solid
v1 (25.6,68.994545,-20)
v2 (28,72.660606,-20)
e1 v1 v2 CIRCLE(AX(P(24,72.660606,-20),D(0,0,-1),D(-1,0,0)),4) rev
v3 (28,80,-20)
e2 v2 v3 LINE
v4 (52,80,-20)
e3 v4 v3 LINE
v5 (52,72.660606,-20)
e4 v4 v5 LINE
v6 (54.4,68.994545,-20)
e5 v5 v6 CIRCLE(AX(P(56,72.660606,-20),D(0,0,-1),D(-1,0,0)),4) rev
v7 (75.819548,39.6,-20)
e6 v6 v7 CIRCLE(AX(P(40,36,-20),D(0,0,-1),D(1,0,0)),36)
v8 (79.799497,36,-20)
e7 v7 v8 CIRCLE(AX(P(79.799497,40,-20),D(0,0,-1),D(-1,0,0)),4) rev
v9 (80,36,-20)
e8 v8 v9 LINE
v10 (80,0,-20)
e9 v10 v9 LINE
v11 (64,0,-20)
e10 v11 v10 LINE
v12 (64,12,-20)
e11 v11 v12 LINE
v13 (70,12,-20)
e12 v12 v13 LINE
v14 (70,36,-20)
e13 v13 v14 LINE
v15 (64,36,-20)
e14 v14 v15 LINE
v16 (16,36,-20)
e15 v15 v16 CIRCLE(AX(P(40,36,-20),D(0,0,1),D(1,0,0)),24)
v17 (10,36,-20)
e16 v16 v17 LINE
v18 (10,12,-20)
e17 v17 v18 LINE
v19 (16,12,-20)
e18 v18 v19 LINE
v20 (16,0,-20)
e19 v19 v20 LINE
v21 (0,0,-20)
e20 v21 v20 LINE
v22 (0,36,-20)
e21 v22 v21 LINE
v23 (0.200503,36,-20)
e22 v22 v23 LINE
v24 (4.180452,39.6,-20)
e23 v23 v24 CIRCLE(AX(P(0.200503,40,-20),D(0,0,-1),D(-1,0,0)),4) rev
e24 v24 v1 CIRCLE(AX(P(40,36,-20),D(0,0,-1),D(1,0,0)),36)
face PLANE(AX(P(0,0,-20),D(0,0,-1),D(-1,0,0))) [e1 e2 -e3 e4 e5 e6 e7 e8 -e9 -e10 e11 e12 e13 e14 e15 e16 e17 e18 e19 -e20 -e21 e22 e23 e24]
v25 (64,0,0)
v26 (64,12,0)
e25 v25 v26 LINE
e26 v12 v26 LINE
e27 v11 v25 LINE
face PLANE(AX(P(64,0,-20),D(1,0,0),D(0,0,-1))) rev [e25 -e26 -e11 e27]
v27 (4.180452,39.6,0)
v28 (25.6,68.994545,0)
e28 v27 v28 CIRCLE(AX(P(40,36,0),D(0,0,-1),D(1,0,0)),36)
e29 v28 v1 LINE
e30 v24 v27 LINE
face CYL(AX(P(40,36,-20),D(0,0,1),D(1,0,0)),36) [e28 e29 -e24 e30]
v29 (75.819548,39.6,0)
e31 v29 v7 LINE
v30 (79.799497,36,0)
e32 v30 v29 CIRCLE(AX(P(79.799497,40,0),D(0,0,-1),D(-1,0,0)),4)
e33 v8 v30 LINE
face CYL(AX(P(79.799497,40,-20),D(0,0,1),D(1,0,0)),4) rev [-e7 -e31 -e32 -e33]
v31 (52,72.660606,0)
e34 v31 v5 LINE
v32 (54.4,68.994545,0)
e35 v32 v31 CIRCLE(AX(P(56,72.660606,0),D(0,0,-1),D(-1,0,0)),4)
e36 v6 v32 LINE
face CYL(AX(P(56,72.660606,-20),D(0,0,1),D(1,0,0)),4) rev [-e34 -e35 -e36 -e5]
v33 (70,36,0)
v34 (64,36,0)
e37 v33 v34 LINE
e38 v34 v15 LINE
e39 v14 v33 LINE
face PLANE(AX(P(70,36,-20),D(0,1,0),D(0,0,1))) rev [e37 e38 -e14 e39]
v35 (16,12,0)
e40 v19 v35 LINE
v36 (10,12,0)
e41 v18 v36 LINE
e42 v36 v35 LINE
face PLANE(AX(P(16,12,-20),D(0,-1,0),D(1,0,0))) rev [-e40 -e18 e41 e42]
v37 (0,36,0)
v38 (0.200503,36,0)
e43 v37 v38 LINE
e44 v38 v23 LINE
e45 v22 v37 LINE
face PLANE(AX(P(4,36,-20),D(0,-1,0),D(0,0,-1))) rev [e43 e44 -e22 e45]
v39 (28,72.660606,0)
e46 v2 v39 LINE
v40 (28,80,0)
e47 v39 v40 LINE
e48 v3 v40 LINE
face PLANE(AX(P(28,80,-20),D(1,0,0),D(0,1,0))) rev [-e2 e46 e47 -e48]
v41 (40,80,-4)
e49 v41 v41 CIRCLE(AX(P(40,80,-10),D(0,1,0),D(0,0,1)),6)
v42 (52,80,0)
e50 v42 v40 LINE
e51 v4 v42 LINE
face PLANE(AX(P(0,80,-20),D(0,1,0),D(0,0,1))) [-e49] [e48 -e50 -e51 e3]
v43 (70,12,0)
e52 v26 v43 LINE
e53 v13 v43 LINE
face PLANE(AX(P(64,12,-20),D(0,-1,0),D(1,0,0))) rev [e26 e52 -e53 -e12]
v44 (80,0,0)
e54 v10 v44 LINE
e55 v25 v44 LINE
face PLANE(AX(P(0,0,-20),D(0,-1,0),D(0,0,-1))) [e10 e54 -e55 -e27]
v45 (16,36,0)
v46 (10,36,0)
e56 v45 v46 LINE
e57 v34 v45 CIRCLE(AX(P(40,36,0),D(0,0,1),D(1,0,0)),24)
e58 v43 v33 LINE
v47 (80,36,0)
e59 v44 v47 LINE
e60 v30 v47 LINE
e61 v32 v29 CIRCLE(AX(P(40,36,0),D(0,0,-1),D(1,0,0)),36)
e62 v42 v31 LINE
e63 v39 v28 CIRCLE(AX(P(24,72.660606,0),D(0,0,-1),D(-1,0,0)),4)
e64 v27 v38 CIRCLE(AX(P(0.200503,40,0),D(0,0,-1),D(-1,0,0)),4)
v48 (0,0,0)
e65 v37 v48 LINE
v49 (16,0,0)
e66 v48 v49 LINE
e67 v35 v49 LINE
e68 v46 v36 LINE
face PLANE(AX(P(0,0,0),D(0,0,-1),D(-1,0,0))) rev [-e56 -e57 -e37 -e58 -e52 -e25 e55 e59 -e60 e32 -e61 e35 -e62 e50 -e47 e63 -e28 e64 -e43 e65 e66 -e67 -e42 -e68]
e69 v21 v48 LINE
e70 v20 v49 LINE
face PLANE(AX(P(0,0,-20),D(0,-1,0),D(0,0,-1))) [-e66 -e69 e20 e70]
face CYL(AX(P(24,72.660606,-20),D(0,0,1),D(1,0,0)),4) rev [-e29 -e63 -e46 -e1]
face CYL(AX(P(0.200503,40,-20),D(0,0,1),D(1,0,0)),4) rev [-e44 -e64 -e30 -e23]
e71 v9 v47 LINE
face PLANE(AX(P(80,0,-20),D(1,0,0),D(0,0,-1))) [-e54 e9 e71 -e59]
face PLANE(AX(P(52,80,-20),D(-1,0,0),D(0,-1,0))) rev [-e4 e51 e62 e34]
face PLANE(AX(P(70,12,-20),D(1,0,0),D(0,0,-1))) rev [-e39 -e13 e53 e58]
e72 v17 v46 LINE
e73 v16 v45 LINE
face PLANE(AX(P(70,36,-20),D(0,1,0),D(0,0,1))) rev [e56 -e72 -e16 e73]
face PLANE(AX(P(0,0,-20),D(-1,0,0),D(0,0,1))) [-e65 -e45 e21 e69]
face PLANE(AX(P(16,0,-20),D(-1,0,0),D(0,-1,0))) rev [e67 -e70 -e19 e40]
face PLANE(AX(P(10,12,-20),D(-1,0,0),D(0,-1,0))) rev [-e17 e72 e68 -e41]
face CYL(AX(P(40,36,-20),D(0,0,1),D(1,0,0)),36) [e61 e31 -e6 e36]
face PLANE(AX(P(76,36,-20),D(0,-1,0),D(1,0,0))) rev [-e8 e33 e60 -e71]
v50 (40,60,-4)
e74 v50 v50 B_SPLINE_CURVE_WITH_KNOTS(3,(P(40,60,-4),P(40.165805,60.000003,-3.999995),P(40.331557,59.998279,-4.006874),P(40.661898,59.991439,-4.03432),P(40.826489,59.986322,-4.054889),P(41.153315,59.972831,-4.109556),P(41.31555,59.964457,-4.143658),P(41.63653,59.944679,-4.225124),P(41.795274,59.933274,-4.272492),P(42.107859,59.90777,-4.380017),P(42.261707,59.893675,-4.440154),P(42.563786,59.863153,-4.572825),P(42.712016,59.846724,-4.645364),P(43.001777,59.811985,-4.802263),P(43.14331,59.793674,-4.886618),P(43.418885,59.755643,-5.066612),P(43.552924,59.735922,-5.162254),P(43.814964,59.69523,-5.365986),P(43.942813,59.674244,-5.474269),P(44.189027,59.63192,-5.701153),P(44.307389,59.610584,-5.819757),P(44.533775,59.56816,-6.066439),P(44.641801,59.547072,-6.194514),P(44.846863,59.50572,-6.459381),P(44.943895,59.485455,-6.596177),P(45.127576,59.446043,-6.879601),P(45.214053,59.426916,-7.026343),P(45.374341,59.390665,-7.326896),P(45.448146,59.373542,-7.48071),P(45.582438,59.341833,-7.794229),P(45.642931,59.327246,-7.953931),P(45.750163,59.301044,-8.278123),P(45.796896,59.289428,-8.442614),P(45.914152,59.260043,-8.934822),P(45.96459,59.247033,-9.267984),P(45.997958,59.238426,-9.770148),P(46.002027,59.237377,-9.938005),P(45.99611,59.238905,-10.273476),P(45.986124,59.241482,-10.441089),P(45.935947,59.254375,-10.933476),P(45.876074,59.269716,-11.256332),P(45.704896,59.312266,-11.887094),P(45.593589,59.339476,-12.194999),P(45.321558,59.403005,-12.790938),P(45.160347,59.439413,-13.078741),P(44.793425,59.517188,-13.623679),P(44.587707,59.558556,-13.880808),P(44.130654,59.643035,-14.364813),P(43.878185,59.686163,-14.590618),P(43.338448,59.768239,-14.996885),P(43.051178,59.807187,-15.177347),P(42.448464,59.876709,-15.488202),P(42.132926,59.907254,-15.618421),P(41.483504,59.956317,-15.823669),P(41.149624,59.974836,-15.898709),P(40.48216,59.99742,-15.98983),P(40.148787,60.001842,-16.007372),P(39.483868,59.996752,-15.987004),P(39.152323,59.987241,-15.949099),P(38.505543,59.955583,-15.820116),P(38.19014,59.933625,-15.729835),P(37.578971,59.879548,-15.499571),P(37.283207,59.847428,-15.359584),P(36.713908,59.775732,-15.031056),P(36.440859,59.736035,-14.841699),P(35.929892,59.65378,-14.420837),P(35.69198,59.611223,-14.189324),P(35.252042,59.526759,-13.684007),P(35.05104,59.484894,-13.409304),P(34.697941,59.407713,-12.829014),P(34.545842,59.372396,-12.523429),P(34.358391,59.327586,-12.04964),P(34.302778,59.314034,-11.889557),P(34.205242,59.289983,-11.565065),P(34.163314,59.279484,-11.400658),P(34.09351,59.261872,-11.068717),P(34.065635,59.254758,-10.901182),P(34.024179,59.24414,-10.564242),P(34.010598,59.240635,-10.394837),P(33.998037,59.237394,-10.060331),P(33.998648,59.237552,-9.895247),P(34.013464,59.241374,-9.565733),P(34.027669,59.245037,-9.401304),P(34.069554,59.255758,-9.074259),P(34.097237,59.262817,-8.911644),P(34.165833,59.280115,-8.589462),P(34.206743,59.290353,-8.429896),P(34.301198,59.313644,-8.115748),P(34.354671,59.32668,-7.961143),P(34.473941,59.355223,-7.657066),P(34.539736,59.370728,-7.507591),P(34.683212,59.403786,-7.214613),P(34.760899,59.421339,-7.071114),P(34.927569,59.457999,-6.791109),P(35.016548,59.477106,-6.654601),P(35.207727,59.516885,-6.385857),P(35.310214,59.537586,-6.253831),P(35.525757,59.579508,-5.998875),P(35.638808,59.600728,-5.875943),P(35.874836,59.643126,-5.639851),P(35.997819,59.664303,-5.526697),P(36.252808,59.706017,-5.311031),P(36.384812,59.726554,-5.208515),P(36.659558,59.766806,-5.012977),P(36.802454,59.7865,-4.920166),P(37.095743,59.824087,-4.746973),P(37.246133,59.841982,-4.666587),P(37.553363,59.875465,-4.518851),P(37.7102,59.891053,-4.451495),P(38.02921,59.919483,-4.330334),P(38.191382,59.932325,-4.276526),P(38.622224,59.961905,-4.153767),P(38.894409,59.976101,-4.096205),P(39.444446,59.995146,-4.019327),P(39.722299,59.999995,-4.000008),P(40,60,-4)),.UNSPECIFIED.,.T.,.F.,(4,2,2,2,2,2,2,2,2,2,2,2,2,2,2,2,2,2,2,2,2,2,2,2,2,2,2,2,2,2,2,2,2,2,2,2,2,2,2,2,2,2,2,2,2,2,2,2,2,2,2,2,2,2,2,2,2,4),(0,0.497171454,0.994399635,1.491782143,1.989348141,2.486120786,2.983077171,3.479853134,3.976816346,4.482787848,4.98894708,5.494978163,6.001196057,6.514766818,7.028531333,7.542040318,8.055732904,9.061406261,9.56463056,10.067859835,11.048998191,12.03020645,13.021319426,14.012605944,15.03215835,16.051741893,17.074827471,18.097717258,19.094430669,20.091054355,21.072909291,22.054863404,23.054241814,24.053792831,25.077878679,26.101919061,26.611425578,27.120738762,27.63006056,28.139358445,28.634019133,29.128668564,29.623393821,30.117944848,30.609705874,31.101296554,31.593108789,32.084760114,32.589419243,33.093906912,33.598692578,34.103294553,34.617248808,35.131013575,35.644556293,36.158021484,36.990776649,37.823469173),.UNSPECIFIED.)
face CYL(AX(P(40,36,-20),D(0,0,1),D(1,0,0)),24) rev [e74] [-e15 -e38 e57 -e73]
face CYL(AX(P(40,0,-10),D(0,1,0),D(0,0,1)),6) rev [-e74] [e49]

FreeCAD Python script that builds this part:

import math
import FreeCAD as App
import Part
import Sketcher

V = App.Vector


def edges_at(feature, points):
    """Names of the edges that pass closest to the given points."""
    edges = feature.Shape.Edges
    near = lambda p: min(range(len(edges)), key=lambda i: edges[i].distToShape(Part.Vertex(*p))[0])
    return sorted({f"Edge{near(p) + 1}" for p in points})

doc = App.newDocument("Part")
params = doc.addObject("Spreadsheet::Sheet", "Params")
for row, (alias, value) in enumerate([
    ("sketch1_width", "80 mm"),
    ("pad1_length", "20 mm"),
    ("sketch2_width", "48 mm"),
    ("sketch2_width2", "6 mm"),
    ("sketch2_height", "12 mm"),
    ("sketch2_height2", "24 mm"),
    ("sketch3_diameter", "48 mm"),
    ("sketch4_radius", "36 mm"),
    ("sketch4_width", "4 mm"),
    ("sketch4_width2", "28 mm"),
    ("sketch4_height", "44 mm"),
    ("sketch5_diameter", "12 mm"),
    ("fillet_radius", "4 mm"),
], start=1):
    params.set(f"A{row}", alias)
    params.set(f"B{row}", "=" + value)
    params.setAlias(f"B{row}", alias)

body = doc.addObject("PartDesign::Body", "Body")

# Sketch on XY plane
sketch1 = body.newObject("Sketcher::SketchObject", "Sketch")
sketch1.AttachmentSupport = (doc.getObject("XY_Plane"), [""])
sketch1.MapMode = "FlatFace"
sketch1.addGeometry(Part.LineSegment(V(0, 80, 0), V(0, 0, 0)), False)
sketch1.addGeometry(Part.LineSegment(V(0, 0, 0), V(80, 0, 0)), False)
sketch1.addGeometry(Part.LineSegment(V(80, 0, 0), V(80, 80, 0)), False)
sketch1.addGeometry(Part.LineSegment(V(80, 80, 0), V(0, 80, 0)), False)
sketch1.addConstraint(Sketcher.Constraint("Coincident", 0, 2, 1, 1))
sketch1.addConstraint(Sketcher.Constraint("Coincident", 1, 2, 2, 1))
sketch1.addConstraint(Sketcher.Constraint("Coincident", 2, 2, 3, 1))
sketch1.addConstraint(Sketcher.Constraint("Coincident", 3, 2, 0, 1))
sketch1.addConstraint(Sketcher.Constraint("Vertical", 0))
sketch1.addConstraint(Sketcher.Constraint("Horizontal", 1))
sketch1.addConstraint(Sketcher.Constraint("Vertical", 2))
sketch1.addConstraint(Sketcher.Constraint("Horizontal", 3))
sketch1.addConstraint(Sketcher.Constraint("Coincident", 0, 2, -1, 1))
sketch1.addConstraint(Sketcher.Constraint("Equal", 3, 0))
sketch1.addConstraint(Sketcher.Constraint("DistanceX", 1, 1, 1, 2, 80.0))
sketch1.setExpression("Constraints[10]", "Params.sketch1_width")
pad1 = body.newObject("PartDesign::Pad", "Pad")
pad1.Profile = sketch1
pad1.setExpression("Length", "Params.pad1_length")
pad1.Reversed = True

# Sketch on XY plane
sketch2 = body.newObject("Sketcher::SketchObject", "Sketch001")
sketch2.AttachmentSupport = (doc.getObject("XY_Plane"), [""])
sketch2.MapMode = "FlatFace"
sketch2.addGeometry(Part.LineSegment(V(16, 0, 0), V(64, 0, 0)), False)
sketch2.addGeometry(Part.LineSegment(V(64, 0, 0), V(64, 12, 0)), False)
sketch2.addGeometry(Part.LineSegment(V(64, 12, 0), V(70, 12, 0)), False)
sketch2.addGeometry(Part.LineSegment(V(70, 12, 0), V(70, 36, 0)), False)
sketch2.addGeometry(Part.LineSegment(V(70, 36, 0), V(10, 36, 0)), False)
sketch2.addGeometry(Part.LineSegment(V(10, 36, 0), V(10, 12, 0)), False)
sketch2.addGeometry(Part.LineSegment(V(10, 12, 0), V(16, 12, 0)), False)
sketch2.addGeometry(Part.LineSegment(V(16, 12, 0), V(16, 0, 0)), False)
sketch2.addConstraint(Sketcher.Constraint("Coincident", 0, 2, 1, 1))
sketch2.addConstraint(Sketcher.Constraint("Coincident", 1, 2, 2, 1))
sketch2.addConstraint(Sketcher.Constraint("Coincident", 2, 2, 3, 1))
sketch2.addConstraint(Sketcher.Constraint("Coincident", 3, 2, 4, 1))
sketch2.addConstraint(Sketcher.Constraint("Coincident", 4, 2, 5, 1))
sketch2.addConstraint(Sketcher.Constraint("Coincident", 5, 2, 6, 1))
sketch2.addConstraint(Sketcher.Constraint("Coincident", 6, 2, 7, 1))
sketch2.addConstraint(Sketcher.Constraint("Coincident", 7, 2, 0, 1))
sketch2.addConstraint(Sketcher.Constraint("Horizontal", 0))
sketch2.addConstraint(Sketcher.Constraint("Vertical", 1))
sketch2.addConstraint(Sketcher.Constraint("Horizontal", 2))
sketch2.addConstraint(Sketcher.Constraint("Vertical", 3))
sketch2.addConstraint(Sketcher.Constraint("Horizontal", 4))
sketch2.addConstraint(Sketcher.Constraint("Vertical", 5))
sketch2.addConstraint(Sketcher.Constraint("Horizontal", 6))
sketch2.addConstraint(Sketcher.Constraint("Vertical", 7))
sketch2.addConstraint(Sketcher.Constraint("PointOnObject", 0, 2, -1))
sketch2.addConstraint(Sketcher.Constraint("Horizontal", 2, 2, 5, 2))
sketch2.addConstraint(Sketcher.Constraint("Equal", 2, 6))
sketch2.addConstraint(Sketcher.Constraint("DistanceX", 0, 1, 0, 2, 48.0))
sketch2.addConstraint(Sketcher.Constraint("DistanceX", 2, 1, 2, 2, 6.0))
sketch2.addConstraint(Sketcher.Constraint("DistanceY", 1, 1, 1, 2, 12.0))
sketch2.addConstraint(Sketcher.Constraint("DistanceY", 3, 1, 3, 2, 24.0))
sketch2.addConstraint(Sketcher.Constraint("DistanceX", -1, 1, 0, 2, 64.0))
sketch2.setExpression("Constraints[19]", "Params.sketch2_width")
sketch2.setExpression("Constraints[20]", "Params.sketch2_width2")
sketch2.setExpression("Constraints[21]", "Params.sketch2_height")
sketch2.setExpression("Constraints[22]", "Params.sketch2_height2")
pocket1 = body.newObject("PartDesign::Pocket", "Pocket")
pocket1.Profile = sketch2
pocket1.Type = "ThroughAll"

# Sketch on XY plane
sketch3 = body.newObject("Sketcher::SketchObject", "Sketch002")
sketch3.AttachmentSupport = (doc.getObject("XY_Plane"), [""])
sketch3.MapMode = "FlatFace"
sketch3.addGeometry(Part.Circle(V(40, 36, 0), V(0, 0, 1), 24), False)
sketch3.addConstraint(Sketcher.Constraint("Diameter", 0, 48.0))
sketch3.addConstraint(Sketcher.Constraint("DistanceX", -1, 1, 0, 3, 40.0))
sketch3.addConstraint(Sketcher.Constraint("DistanceY", -1, 1, 0, 3, 36.0))
sketch3.setExpression("Constraints[0]", "Params.sketch3_diameter")
pocket2 = body.newObject("PartDesign::Pocket", "Pocket001")
pocket2.Profile = sketch3
pocket2.Type = "ThroughAll"

# Sketch on XY plane
sketch4 = body.newObject("Sketcher::SketchObject", "Sketch003")
sketch4.AttachmentSupport = (doc.getObject("XY_Plane"), [""])
sketch4.MapMode = "FlatFace"
sketch4.addGeometry(Part.LineSegment(V(0, 36, 0), V(4, 36, 0)), False)
sketch4.addGeometry(Part.ArcOfCircle(Part.Circle(V(40, 36, 0), V(0, 0, 1), 36), math.radians(109), math.radians(180)), False)
sketch4.addGeometry(Part.LineSegment(V(28, 69.9, 0), V(28, 80, 0)), False)
sketch4.addGeometry(Part.LineSegment(V(28, 80, 0), V(0, 80, 0)), False)
sketch4.addGeometry(Part.LineSegment(V(0, 80, 0), V(0, 36, 0)), False)
sketch4.addGeometry(Part.LineSegment(V(76, 36, 0), V(80, 36, 0)), False)
sketch4.addGeometry(Part.LineSegment(V(80, 36, 0), V(80, 80, 0)), False)
sketch4.addGeometry(Part.LineSegment(V(80, 80, 0), V(52, 80, 0)), False)
sketch4.addGeometry(Part.LineSegment(V(52, 80, 0), V(52, 69.9, 0)), False)
sketch4.addGeometry(Part.ArcOfCircle(Part.Circle(V(40, 36, 0), V(0, 0, 1), 36), math.radians(0), math.radians(71)), False)
sketch4.addConstraint(Sketcher.Constraint("Coincident", 0, 2, 1, 2))
sketch4.addConstraint(Sketcher.Constraint("Coincident", 1, 1, 2, 1))
sketch4.addConstraint(Sketcher.Constraint("Coincident", 2, 2, 3, 1))
sketch4.addConstraint(Sketcher.Constraint("Coincident", 3, 2, 4, 1))
sketch4.addConstraint(Sketcher.Constraint("Coincident", 4, 2, 0, 1))
sketch4.addConstraint(Sketcher.Constraint("Coincident", 5, 2, 6, 1))
sketch4.addConstraint(Sketcher.Constraint("Coincident", 6, 2, 7, 1))
sketch4.addConstraint(Sketcher.Constraint("Coincident", 7, 2, 8, 1))
sketch4.addConstraint(Sketcher.Constraint("Coincident", 8, 2, 9, 2))
sketch4.addConstraint(Sketcher.Constraint("Coincident", 9, 1, 5, 1))
sketch4.addConstraint(Sketcher.Constraint("Horizontal", 0))
sketch4.addConstraint(Sketcher.Constraint("Vertical", 2))
sketch4.addConstraint(Sketcher.Constraint("Horizontal", 3))
sketch4.addConstraint(Sketcher.Constraint("Vertical", 4))
sketch4.addConstraint(Sketcher.Constraint("Horizontal", 5))
sketch4.addConstraint(Sketcher.Constraint("Vertical", 6))
sketch4.addConstraint(Sketcher.Constraint("Horizontal", 7))
sketch4.addConstraint(Sketcher.Constraint("Vertical", 8))
sketch4.addConstraint(Sketcher.Constraint("Coincident", 9, 3, 1, 3))
sketch4.addConstraint(Sketcher.Constraint("Equal", 1, 9))
sketch4.addConstraint(Sketcher.Constraint("PointOnObject", 3, 2, -2))
sketch4.addConstraint(Sketcher.Constraint("Horizontal", 9, 3, 0, 2))
sketch4.addConstraint(Sketcher.Constraint("Horizontal", 4, 2, 5, 2))
sketch4.addConstraint(Sketcher.Constraint("Horizontal", 3, 2, 6, 2))
sketch4.addConstraint(Sketcher.Constraint("Horizontal", 1, 1, 8, 2))
sketch4.addConstraint(Sketcher.Constraint("Equal", 0, 5))
sketch4.addConstraint(Sketcher.Constraint("Radius", 1, 36.0))
sketch4.addConstraint(Sketcher.Constraint("DistanceX", 0, 1, 0, 2, 4.0))
sketch4.addConstraint(Sketcher.Constraint("DistanceX", 3, 2, 3, 1, 28.0))
sketch4.addConstraint(Sketcher.Constraint("DistanceY", 4, 2, 4, 1, 44.0))
sketch4.addConstraint(Sketcher.Constraint("DistanceY", -1, 1, 1, 3, 36.0))
sketch4.setExpression("Constraints[26]", "Params.sketch4_radius")
sketch4.setExpression("Constraints[27]", "Params.sketch4_width")
sketch4.setExpression("Constraints[28]", "Params.sketch4_width2")
sketch4.setExpression("Constraints[29]", "Params.sketch4_height")
pocket3 = body.newObject("PartDesign::Pocket", "Pocket002")
pocket3.Profile = sketch4
pocket3.Type = "ThroughAll"

# Sketch on XZ plane
sketch5 = body.newObject("Sketcher::SketchObject", "Sketch004")
sketch5.AttachmentSupport = (doc.getObject("XZ_Plane"), [""])
sketch5.MapMode = "FlatFace"
sketch5.AttachmentOffset = App.Placement(V(0, 0, -80), App.Rotation())
sketch5.addGeometry(Part.Circle(V(40, -10, 0), V(0, 0, 1), 6), False)
sketch5.addConstraint(Sketcher.Constraint("Diameter", 0, 12.0))
sketch5.addConstraint(Sketcher.Constraint("DistanceX", -1, 1, 0, 3, 40.0))
sketch5.addConstraint(Sketcher.Constraint("DistanceY", 0, 3, -1, 1, 10.0))
sketch5.setExpression("Constraints[0]", "Params.sketch5_diameter")
pocket4 = body.newObject("PartDesign::Pocket", "Pocket003")
pocket4.Profile = sketch5
pocket4.Type = "ThroughAll"
pocket4.Reversed = True
doc.recompute()

fillet = body.newObject("PartDesign::Fillet", "Fillet")
fillet.Base = (pocket4, edges_at(pocket4, [
    (76, 36, -10),
    (52, 69.941, -10),
    (28, 69.941, -10),
    (4, 36, -10),
]))
fillet.setExpression("Radius", "Params.fillet_radius")

doc.recompute()
